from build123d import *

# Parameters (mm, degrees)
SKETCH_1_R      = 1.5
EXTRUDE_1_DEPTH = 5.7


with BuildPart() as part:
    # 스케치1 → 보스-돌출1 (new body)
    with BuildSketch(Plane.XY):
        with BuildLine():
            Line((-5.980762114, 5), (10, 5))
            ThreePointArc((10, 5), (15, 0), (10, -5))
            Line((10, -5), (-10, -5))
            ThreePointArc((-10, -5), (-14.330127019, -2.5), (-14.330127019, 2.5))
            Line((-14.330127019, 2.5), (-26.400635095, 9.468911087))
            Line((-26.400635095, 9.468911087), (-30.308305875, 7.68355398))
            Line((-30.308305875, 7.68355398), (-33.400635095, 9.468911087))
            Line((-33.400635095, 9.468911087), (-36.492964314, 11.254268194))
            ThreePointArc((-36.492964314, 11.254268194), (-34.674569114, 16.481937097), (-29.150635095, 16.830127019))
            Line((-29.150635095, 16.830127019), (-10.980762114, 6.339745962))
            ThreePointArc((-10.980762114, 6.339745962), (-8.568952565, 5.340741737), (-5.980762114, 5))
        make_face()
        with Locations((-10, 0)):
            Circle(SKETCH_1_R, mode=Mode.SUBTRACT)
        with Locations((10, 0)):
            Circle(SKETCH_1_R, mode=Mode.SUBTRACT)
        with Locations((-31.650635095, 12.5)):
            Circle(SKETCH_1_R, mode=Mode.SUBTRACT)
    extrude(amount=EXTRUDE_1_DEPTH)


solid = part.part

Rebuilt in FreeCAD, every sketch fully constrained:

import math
import FreeCAD as App
import Part
import Sketcher
Q = App.Units.Quantity

doc = App.newDocument("Part")
params = doc.addObject("Spreadsheet::Sheet", "Params")
for row, (alias, value) in enumerate([
    ("sketch1_diameter", "3 mm"),
    ("sketch1_radius", "10 mm"),
    ("sketch1_radius2", "5 mm"),
    ("sketch1_width", "20 mm"),
    ("pad1_length", "5.7 mm"),
], start=1):
    params.set(f"A{row}", alias)
    params.set(f"B{row}", "=" + value)
    params.setAlias(f"B{row}", alias)

body = doc.addObject("PartDesign::Body", "Body")

# Sketch on XY plane
sketch1 = body.newObject("Sketcher::SketchObject", "Sketch")
sketch1.AttachmentSupport = (doc.getObject("XY_Plane"), [""])
sketch1.MapMode = "FlatFace"
sketch1.addGeometry([
    Part.LineSegment(App.Vector(10, 5, 0), App.Vector(-6, 5, 0)),  # 0
    Part.ArcOfCircle(Part.Circle(App.Vector(-6, 15, 0), App.Vector(0, 0, 1), 10), math.radians(-120), math.radians(-90)),  # 1
    Part.LineSegment(App.Vector(-11, 6.3, 0), App.Vector(-29.2, 16.8, 0)),  # 2
    Part.ArcOfCircle(Part.Circle(App.Vector(-31.7, 12.5, 0), App.Vector(0, 0, 1), 5), math.radians(60), math.radians(194)),  # 3
    Part.LineSegment(App.Vector(-36.5, 11.3, 0), App.Vector(-33.4, 9.5, 0)),  # 4
    Part.LineSegment(App.Vector(-33.4, 9.5, 0), App.Vector(-30.3, 7.7, 0)),  # 5
    Part.LineSegment(App.Vector(-30.3, 7.7, 0), App.Vector(-26.4, 9.5, 0)),  # 6
    Part.LineSegment(App.Vector(-26.4, 9.5, 0), App.Vector(-14.3, 2.5, 0)),  # 7
    Part.ArcOfCircle(Part.Circle(App.Vector(-10, 0, 0), App.Vector(0, 0, 1), 5), math.radians(150), math.radians(270)),  # 8
    Part.LineSegment(App.Vector(-10, -5, 0), App.Vector(10, -5, 0)),  # 9
    Part.ArcOfCircle(Part.Circle(App.Vector(10, 0, 0), App.Vector(0, 0, 1), 5), math.radians(-90), math.radians(90)),  # 10
    Part.Circle(App.Vector(10, 0, 0), App.Vector(0, 0, 1), 1.5),  # 11
    Part.Circle(App.Vector(-10, 0, 0), App.Vector(0, 0, 1), 1.5),  # 12
    Part.Circle(App.Vector(-31.7, 12.5, 0), App.Vector(0, 0, 1), 1.5),  # 13
], False)
sketch1.addConstraint([
    Sketcher.Constraint("Tangent", 0, 2, 1, 2),
    Sketcher.Constraint("Tangent", 1, 1, 2, 1),
    Sketcher.Constraint("Tangent", 2, 2, 3, 1),
    Sketcher.Constraint("Coincident", 3, 2, 4, 1),
    Sketcher.Constraint("Coincident", 4, 2, 5, 1),
    Sketcher.Constraint("Coincident", 5, 2, 6, 1),
    Sketcher.Constraint("Coincident", 6, 2, 7, 1),
    Sketcher.Constraint("Coincident", 7, 2, 8, 1),
    Sketcher.Constraint("Tangent", 8, 2, 9, 1),
    Sketcher.Constraint("Tangent", 9, 2, 10, 1),
    Sketcher.Constraint("Tangent", 10, 2, 0, 1),
    Sketcher.Constraint("Horizontal", 0),
    Sketcher.Constraint("Horizontal", 9),
    Sketcher.Constraint("Coincident", 11, 3, 10, 3),
    Sketcher.Constraint("Coincident", 12, 3, 8, 3),
    Sketcher.Constraint("Coincident", 13, 3, 3, 3),
    Sketcher.Constraint("Equal", 3, 8),
    Sketcher.Constraint("Equal", 8, 10),
    Sketcher.Constraint("Equal", 11, 12),
    Sketcher.Constraint("Equal", 12, 13),
    Sketcher.Constraint("Symmetric", 8, 3, 10, 3, -1, 1),
    Sketcher.Constraint("Parallel", 2, 4),
    Sketcher.Constraint("Parallel", 4, 5),
    Sketcher.Constraint("Parallel", 5, 7),
    Sketcher.Constraint("Horizontal", 4, 2, 6, 2),
    Sketcher.Constraint("Equal", 4, 5),
    Sketcher.Constraint("Diameter", 11, 3.0),
    Sketcher.Constraint("Radius", 1, 10.0),
    Sketcher.Constraint("Radius", 3, 5.0),
    Sketcher.Constraint("DistanceX", 9, 1, 9, 2, 20.0),
    Sketcher.Constraint("Angle", 2, Q("150 deg")),
    Sketcher.Constraint("DistanceX", 4, 2, 6, 2, 7.0),
    Sketcher.Constraint("DistanceY", -1, 1, 3, 3, 12.5),
    Sketcher.Constraint("DistanceY", -1, 1, 7, 2, 2.5),
    Sketcher.Constraint("DistanceX", 4, 2, 3, 3, 1.75),
    Sketcher.Constraint("DistanceX", 0, 2, 0, 1, 15.980762),
])
sketch1.setExpression("Constraints[26]", "Params.sketch1_diameter")
sketch1.setExpression("Constraints[27]", "Params.sketch1_radius")
sketch1.setExpression("Constraints[28]", "Params.sketch1_radius2")
sketch1.setExpression("Constraints[29]", "Params.sketch1_width")
pad1 = body.newObject("PartDesign::Pad", "Pad")
pad1.Profile = sketch1
pad1.setExpression("Length", "Params.pad1_length")

doc.recompute()
